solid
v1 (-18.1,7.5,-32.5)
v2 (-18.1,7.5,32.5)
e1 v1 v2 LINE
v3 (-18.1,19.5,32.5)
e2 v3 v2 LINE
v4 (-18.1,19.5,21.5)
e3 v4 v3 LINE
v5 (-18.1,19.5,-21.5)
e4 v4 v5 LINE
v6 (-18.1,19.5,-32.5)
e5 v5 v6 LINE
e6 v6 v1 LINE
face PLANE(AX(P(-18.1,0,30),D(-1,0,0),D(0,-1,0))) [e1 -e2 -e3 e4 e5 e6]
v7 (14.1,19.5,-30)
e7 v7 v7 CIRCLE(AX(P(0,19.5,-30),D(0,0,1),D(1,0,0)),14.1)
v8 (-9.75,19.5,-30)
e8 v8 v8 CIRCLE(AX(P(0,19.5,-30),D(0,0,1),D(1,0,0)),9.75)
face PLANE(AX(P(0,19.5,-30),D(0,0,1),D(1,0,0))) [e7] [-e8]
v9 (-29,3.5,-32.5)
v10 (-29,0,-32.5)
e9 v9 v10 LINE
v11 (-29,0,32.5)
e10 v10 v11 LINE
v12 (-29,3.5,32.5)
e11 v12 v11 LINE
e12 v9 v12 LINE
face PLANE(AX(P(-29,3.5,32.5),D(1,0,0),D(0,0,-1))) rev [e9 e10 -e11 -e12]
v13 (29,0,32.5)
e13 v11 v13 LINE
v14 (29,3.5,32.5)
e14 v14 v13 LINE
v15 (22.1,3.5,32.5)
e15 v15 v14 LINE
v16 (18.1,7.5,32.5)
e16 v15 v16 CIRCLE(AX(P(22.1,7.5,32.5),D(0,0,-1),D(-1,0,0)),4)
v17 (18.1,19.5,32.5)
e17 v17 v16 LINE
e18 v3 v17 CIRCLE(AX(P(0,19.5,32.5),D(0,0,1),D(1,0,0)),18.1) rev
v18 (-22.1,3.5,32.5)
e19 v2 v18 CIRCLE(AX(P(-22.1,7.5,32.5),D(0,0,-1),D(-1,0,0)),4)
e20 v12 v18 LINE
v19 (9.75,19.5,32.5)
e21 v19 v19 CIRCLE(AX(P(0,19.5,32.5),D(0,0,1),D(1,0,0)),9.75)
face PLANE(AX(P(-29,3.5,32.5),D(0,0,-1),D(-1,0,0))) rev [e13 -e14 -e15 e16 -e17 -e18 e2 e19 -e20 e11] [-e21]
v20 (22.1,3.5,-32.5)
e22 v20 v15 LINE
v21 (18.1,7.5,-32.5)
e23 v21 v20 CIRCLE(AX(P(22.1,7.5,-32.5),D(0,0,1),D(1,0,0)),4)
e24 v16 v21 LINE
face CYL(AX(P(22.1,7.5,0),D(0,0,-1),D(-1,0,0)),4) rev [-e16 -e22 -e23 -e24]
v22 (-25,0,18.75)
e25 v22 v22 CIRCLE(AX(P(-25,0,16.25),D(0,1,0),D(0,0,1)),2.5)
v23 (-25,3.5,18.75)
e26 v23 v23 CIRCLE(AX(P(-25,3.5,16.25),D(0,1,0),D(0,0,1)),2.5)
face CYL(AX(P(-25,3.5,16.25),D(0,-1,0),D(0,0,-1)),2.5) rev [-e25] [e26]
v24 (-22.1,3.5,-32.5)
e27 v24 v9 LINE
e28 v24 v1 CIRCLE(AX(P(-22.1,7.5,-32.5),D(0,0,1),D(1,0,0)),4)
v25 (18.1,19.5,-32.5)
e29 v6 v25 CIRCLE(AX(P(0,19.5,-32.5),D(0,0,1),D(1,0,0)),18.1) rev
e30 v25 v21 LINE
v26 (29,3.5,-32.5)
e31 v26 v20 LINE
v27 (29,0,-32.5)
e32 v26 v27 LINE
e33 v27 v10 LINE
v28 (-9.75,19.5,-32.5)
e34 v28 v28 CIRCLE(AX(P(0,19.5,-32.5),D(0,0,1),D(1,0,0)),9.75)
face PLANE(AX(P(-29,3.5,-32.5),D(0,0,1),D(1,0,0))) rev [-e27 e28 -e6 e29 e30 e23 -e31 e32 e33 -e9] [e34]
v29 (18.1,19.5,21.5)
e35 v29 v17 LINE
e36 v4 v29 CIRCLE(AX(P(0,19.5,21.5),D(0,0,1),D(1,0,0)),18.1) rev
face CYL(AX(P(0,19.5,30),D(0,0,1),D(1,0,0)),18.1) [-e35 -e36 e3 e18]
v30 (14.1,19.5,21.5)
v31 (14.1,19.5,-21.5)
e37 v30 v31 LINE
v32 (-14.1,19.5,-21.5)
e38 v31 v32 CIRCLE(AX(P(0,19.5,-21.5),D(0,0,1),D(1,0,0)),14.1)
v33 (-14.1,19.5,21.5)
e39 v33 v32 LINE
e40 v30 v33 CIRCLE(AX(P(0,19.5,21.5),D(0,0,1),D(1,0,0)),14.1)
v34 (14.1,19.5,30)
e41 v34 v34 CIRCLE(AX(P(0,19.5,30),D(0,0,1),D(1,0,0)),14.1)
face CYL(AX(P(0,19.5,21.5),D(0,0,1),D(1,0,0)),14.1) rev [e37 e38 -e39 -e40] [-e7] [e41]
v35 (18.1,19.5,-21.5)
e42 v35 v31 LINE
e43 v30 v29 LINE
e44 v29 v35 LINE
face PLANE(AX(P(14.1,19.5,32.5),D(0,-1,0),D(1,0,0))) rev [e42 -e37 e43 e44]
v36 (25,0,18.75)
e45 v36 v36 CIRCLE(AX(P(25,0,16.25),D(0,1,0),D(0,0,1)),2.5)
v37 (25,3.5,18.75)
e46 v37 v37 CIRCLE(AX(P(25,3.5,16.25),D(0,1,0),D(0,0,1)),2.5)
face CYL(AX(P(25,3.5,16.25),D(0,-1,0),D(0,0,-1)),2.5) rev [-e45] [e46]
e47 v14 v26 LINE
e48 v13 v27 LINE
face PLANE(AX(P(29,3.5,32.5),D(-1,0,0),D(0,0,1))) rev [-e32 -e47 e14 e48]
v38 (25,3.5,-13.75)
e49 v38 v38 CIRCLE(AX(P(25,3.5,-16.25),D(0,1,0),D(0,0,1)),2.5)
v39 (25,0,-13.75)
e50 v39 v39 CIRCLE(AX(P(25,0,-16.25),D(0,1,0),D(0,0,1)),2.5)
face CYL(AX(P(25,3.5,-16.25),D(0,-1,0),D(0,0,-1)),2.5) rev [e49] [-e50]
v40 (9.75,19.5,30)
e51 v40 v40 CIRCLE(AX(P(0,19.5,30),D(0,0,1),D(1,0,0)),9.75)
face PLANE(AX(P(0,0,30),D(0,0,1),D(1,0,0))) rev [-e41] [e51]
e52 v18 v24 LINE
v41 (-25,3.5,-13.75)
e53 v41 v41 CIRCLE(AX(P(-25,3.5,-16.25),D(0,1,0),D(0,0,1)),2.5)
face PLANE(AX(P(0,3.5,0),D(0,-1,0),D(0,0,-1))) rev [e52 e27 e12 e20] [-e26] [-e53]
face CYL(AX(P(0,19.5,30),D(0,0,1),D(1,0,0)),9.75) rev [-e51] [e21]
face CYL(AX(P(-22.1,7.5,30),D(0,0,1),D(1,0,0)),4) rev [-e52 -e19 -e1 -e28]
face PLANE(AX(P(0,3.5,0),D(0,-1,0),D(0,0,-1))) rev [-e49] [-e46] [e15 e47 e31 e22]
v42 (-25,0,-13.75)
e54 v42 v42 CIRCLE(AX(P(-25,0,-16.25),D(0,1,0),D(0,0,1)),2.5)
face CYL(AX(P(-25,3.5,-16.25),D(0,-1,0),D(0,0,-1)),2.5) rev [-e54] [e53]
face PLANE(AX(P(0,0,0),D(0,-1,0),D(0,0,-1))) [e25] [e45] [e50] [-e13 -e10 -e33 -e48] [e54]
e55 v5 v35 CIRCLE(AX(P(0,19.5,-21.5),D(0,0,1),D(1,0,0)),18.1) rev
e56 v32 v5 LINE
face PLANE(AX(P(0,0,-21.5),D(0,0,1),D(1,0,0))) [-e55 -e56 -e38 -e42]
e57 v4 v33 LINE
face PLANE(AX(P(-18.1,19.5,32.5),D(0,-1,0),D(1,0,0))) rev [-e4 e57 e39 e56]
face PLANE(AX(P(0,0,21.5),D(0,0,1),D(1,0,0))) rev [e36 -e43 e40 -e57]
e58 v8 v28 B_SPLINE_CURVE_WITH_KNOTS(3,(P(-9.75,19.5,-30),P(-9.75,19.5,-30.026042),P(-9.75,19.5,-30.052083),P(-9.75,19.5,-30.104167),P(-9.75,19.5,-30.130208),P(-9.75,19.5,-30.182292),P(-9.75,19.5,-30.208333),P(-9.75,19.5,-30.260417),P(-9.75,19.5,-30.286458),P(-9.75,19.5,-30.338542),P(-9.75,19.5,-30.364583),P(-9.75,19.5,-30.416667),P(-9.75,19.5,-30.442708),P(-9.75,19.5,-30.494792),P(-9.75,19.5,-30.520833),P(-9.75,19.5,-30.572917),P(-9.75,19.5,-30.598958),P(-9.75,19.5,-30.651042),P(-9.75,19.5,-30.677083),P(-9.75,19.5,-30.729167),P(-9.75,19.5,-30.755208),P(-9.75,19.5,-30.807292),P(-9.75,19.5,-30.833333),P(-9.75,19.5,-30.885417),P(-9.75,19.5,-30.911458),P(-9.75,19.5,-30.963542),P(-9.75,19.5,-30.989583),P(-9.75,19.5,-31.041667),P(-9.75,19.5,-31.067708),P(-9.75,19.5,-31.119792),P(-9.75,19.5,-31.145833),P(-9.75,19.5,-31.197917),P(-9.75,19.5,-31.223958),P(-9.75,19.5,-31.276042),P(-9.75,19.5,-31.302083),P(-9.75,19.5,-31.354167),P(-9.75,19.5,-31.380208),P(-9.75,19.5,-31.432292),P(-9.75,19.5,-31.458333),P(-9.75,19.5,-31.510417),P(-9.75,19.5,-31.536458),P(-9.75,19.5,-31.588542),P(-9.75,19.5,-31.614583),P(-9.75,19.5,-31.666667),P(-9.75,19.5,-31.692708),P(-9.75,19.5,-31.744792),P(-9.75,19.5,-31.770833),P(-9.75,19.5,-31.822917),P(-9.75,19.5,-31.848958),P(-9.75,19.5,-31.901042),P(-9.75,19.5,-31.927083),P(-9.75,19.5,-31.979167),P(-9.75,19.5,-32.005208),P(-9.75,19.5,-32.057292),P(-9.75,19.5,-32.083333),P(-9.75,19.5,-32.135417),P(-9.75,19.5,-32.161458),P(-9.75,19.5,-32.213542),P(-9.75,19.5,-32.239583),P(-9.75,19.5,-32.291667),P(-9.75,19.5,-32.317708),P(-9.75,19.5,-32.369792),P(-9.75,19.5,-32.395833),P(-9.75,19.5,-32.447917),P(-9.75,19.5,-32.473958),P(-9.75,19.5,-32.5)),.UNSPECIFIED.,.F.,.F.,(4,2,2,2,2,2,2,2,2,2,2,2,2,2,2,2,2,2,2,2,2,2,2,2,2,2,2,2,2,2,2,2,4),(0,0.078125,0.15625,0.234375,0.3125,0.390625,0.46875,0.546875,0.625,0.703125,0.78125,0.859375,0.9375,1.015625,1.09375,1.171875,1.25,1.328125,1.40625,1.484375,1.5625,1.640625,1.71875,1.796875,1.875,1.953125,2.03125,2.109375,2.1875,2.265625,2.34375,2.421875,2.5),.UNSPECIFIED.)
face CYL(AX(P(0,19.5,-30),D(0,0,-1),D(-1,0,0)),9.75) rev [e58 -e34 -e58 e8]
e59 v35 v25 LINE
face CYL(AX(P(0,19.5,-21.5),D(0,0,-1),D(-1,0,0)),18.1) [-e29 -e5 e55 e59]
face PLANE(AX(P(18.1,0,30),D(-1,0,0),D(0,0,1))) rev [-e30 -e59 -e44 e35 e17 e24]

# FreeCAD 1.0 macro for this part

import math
import FreeCAD as App
import Part
import Sketcher
from FreeCAD import Vector


def edges_at(feature, points):
    """Names of the edges that pass closest to the given points."""
    edges = feature.Shape.Edges
    near = lambda p: min(range(len(edges)), key=lambda i: edges[i].distToShape(Part.Vertex(*p))[0])
    return sorted({f"Edge{near(p) + 1}" for p in points})


def add_polygon(sketch, points):
    """Adds a closed chain of lines whose ends are joined by coincident constraints."""
    first, n = sketch.GeometryCount, len(points)
    for a, b in zip(points, points[1:] + points[:1]):
        sketch.addGeometry(Part.LineSegment(App.Vector(*a, 0), App.Vector(*b, 0)), False)
    for i in range(n):
        sketch.addConstraint(Sketcher.Constraint("Coincident", first + i, 2, first + (i + 1) % n, 1))

doc = App.newDocument("Part")
params = doc.addObject("Spreadsheet::Sheet", "Params")
for row, (alias, value) in enumerate([
    ("sketch1_diameter", "5 mm"),
    ("sketch1_width", "58 mm"),
    ("sketch1_height", "65 mm"),
    ("pad1_length", "3.5 mm"),
    ("sketch2_diameter", "19.5 mm"),
    ("sketch2_radius", "18.1 mm"),
    ("sketch2_height", "16 mm"),
    ("pad2_length", "2.5 mm"),
    ("sketch3_diameter", "28.2 mm"),
    ("sketch3_radius", "18.1 mm"),
    ("sketch3_height", "16 mm"),
    ("pad3_length", "11 mm"),
    ("sketch4_diameter", "28.2 mm"),
    ("sketch4_radius", "18.1 mm"),
    ("sketch4_width", "58 mm"),
    ("sketch4_height", "16 mm"),
    ("sketch4_height2", "3.5 mm"),
    ("pad4_length", "11 mm"),
    ("sketch5_diameter", "28.2 mm"),
    ("sketch5_diameter2", "19.5 mm"),
    ("pad5_length", "2.5 mm"),
    ("fillet_radius", "4 mm"),
    ("sketch6_radius", "4 mm"),
    ("sketch6_radius2", "14.1 mm"),
    ("sketch6_width", "4 mm"),
    ("sketch6_height", "12 mm"),
], start=1):
    params.set(f"A{row}", alias)
    params.set(f"B{row}", "=" + value)
    params.setAlias(f"B{row}", alias)

body = doc.addObject("PartDesign::Body", "Body")

# Sketch on XZ plane
sketch1 = body.newObject("Sketcher::SketchObject", "Sketch")
sketch1.AttachmentSupport = (doc.getObject("XZ_Plane"), [""])
sketch1.MapMode = "FlatFace"
add_polygon(sketch1, [(-29, -32.5), (-29, 32.5), (29, 32.5), (29, -32.5)])  # lines 0-3
sketch1.addGeometry(Part.Circle(Vector(-25, 16.2, 0), Vector(0, 0, 1), 2.5), False)  # 4
sketch1.addGeometry(Part.Circle(Vector(25, 16.2, 0), Vector(0, 0, 1), 2.5), False)  # 5
sketch1.addGeometry(Part.Circle(Vector(-25, -16.2, 0), Vector(0, 0, 1), 2.5), False)  # 6
sketch1.addGeometry(Part.Circle(Vector(25, -16.2, 0), Vector(0, 0, 1), 2.5), False)  # 7
sketch1.addConstraint([
    Sketcher.Constraint("Vertical", 0),
    Sketcher.Constraint("Horizontal", 1),
    Sketcher.Constraint("Vertical", 2),
    Sketcher.Constraint("Horizontal", 3),
    Sketcher.Constraint("Equal", 4, 5),
    Sketcher.Constraint("Equal", 5, 6),
    Sketcher.Constraint("Equal", 6, 7),
    Sketcher.Constraint("Symmetric", 5, 3, 6, 3, -1, 1),
    Sketcher.Constraint("Symmetric", 4, 3, 7, 3, -1, 1),
    Sketcher.Constraint("Symmetric", 0, 2, 2, 2, -1, 1),
    Sketcher.Constraint("Symmetric", 4, 3, 5, 3, -2),
    Sketcher.Constraint("Diameter", 4, 5.0),
    Sketcher.Constraint("DistanceX", 1, 1, 1, 2, 58.0),
    Sketcher.Constraint("DistanceY", 0, 1, 0, 2, 65.0),
    Sketcher.Constraint("DistanceX", 4, 3, -1, 1, 25.0),
    Sketcher.Constraint("DistanceY", 6, 3, 4, 3, 32.5),
])
sketch1.setExpression("Constraints[15]", "Params.sketch1_diameter")
sketch1.setExpression("Constraints[16]", "Params.sketch1_width")
sketch1.setExpression("Constraints[17]", "Params.sketch1_height")
pad1 = body.newObject("PartDesign::Pad", "Pad")
pad1.Profile = sketch1
pad1.setExpression("Length", "Params.pad1_length")
pad1.Reversed = True

# Sketch on XY plane
sketch2 = body.newObject("Sketcher::SketchObject", "Sketch001")
sketch2.AttachmentSupport = (doc.getObject("XY_Plane"), [""])
sketch2.MapMode = "FlatFace"
sketch2.AttachmentOffset = App.Placement(Vector(0, 0, 32.5), App.Rotation())
sketch2.addGeometry([
    Part.ArcOfCircle(Part.Circle(Vector(0, 20, 0), Vector(0, 0, 1), 18), math.radians(0), math.radians(180)),  # 0
    Part.LineSegment(Vector(-18, 20, 0), Vector(-18, 4, 0)),  # 1
    Part.LineSegment(Vector(-18, 4, 0), Vector(18, 4, 0)),  # 2
    Part.LineSegment(Vector(18, 4, 0), Vector(18, 20, 0)),  # 3
    Part.Circle(Vector(0, 20, 0), Vector(0, 0, 1), 10),  # 4
], False)
sketch2.addConstraint([
    Sketcher.Constraint("Tangent", 0, 2, 1, 1),
    Sketcher.Constraint("Coincident", 1, 2, 2, 1),
    Sketcher.Constraint("Coincident", 2, 2, 3, 1),
    Sketcher.Constraint("Tangent", 3, 2, 0, 1),
    Sketcher.Constraint("Vertical", 1),
    Sketcher.Constraint("Horizontal", 2),
    Sketcher.Constraint("Vertical", 3),
    Sketcher.Constraint("Coincident", 4, 3, 0, 3),
    Sketcher.Constraint("PointOnObject", 0, 3, -2),
    Sketcher.Constraint("Diameter", 4, 19.5),
    Sketcher.Constraint("Radius", 0, 18.1),
    Sketcher.Constraint("DistanceY", 1, 2, 1, 1, 16.0),
    Sketcher.Constraint("DistanceY", -1, 1, 0, 3, 19.5),
])
sketch2.setExpression("Constraints[9]", "Params.sketch2_diameter")
sketch2.setExpression("Constraints[10]", "Params.sketch2_radius")
sketch2.setExpression("Constraints[11]", "Params.sketch2_height")
pad2 = body.newObject("PartDesign::Pad", "Pad001")
pad2.Profile = sketch2
pad2.setExpression("Length", "Params.pad2_length")
pad2.Reversed = True

# Sketch on XY plane
sketch3 = body.newObject("Sketcher::SketchObject", "Sketch002")
sketch3.AttachmentSupport = (doc.getObject("XY_Plane"), [""])
sketch3.MapMode = "FlatFace"
sketch3.AttachmentOffset = App.Placement(Vector(0, 0, 32.5), App.Rotation())
sketch3.addGeometry([
    Part.ArcOfCircle(Part.Circle(Vector(0, 20, 0), Vector(0, 0, 1), 18), math.radians(0), math.radians(180)),  # 0
    Part.LineSegment(Vector(-18, 20, 0), Vector(-18, 4, 0)),  # 1
    Part.LineSegment(Vector(-18, 4, 0), Vector(18, 4, 0)),  # 2
    Part.LineSegment(Vector(18, 4, 0), Vector(18, 20, 0)),  # 3
    Part.Circle(Vector(0, 20, 0), Vector(0, 0, 1), 14),  # 4
], False)
sketch3.addConstraint([
    Sketcher.Constraint("Tangent", 0, 2, 1, 1),
    Sketcher.Constraint("Coincident", 1, 2, 2, 1),
    Sketcher.Constraint("Coincident", 2, 2, 3, 1),
    Sketcher.Constraint("Tangent", 3, 2, 0, 1),
    Sketcher.Constraint("Vertical", 1),
    Sketcher.Constraint("Horizontal", 2),
    Sketcher.Constraint("Vertical", 3),
    Sketcher.Constraint("Coincident", 4, 3, 0, 3),
    Sketcher.Constraint("PointOnObject", 0, 3, -2),
    Sketcher.Constraint("Diameter", 4, 28.2),
    Sketcher.Constraint("Radius", 0, 18.1),
    Sketcher.Constraint("DistanceY", 1, 2, 1, 1, 16.0),
    Sketcher.Constraint("DistanceY", -1, 1, 0, 3, 19.5),
])
sketch3.setExpression("Constraints[9]", "Params.sketch3_diameter")
sketch3.setExpression("Constraints[10]", "Params.sketch3_radius")
sketch3.setExpression("Constraints[11]", "Params.sketch3_height")
pad3 = body.newObject("PartDesign::Pad", "Pad002")
pad3.Profile = sketch3
pad3.setExpression("Length", "Params.pad3_length")
pad3.Reversed = True

# Sketch on XY plane
sketch4 = body.newObject("Sketcher::SketchObject", "Sketch003")
sketch4.AttachmentSupport = (doc.getObject("XY_Plane"), [""])
sketch4.MapMode = "FlatFace"
sketch4.AttachmentOffset = App.Placement(Vector(0, 0, -21.5), App.Rotation())
sketch4.addGeometry([
    Part.ArcOfCircle(Part.Circle(Vector(0, 19.5, 0), Vector(0, 0, 1), 18.1), math.radians(0), math.radians(180)),  # 0
    Part.LineSegment(Vector(-18.1, 19.5, 0), Vector(-18.1, 3.5, 0)),  # 1
    Part.LineSegment(Vector(-18.1, 3.5, 0), Vector(-29, 3.5, 0)),  # 2
    Part.LineSegment(Vector(-29, 3.5, 0), Vector(-29, 0, 0)),  # 3
    Part.LineSegment(Vector(-29, 0, 0), Vector(29, 0, 0)),  # 4
    Part.LineSegment(Vector(29, 0, 0), Vector(29, 3.5, 0)),  # 5
    Part.LineSegment(Vector(29, 3.5, 0), Vector(18.1, 3.5, 0)),  # 6
    Part.LineSegment(Vector(18.1, 3.5, 0), Vector(18.1, 19.5, 0)),  # 7
    Part.Circle(Vector(0, 19.5, 0), Vector(0, 0, 1), 14.1),  # 8
], False)
sketch4.addConstraint([
    Sketcher.Constraint("Tangent", 0, 2, 1, 1),
    Sketcher.Constraint("Coincident", 1, 2, 2, 1),
    Sketcher.Constraint("Coincident", 2, 2, 3, 1),
    Sketcher.Constraint("Coincident", 3, 2, 4, 1),
    Sketcher.Constraint("Coincident", 4, 2, 5, 1),
    Sketcher.Constraint("Coincident", 5, 2, 6, 1),
    Sketcher.Constraint("Coincident", 6, 2, 7, 1),
    Sketcher.Constraint("Tangent", 7, 2, 0, 1),
    Sketcher.Constraint("Vertical", 1),
    Sketcher.Constraint("Horizontal", 2),
    Sketcher.Constraint("Vertical", 3),
    Sketcher.Constraint("Horizontal", 4),
    Sketcher.Constraint("Vertical", 5),
    Sketcher.Constraint("Horizontal", 6),
    Sketcher.Constraint("Vertical", 7),
    Sketcher.Constraint("Coincident", 8, 3, 0, 3),
    Sketcher.Constraint("Symmetric", 3, 2, 4, 2, -1, 1),
    Sketcher.Constraint("Symmetric", 1, 2, 6, 2, -2),
    Sketcher.Constraint("Diameter", 8, 28.2),
    Sketcher.Constraint("Radius", 0, 18.1),
    Sketcher.Constraint("DistanceX", 4, 1, 4, 2, 58.0),
    Sketcher.Constraint("DistanceY", 1, 2, 1, 1, 16.0),
    Sketcher.Constraint("DistanceY", 3, 2, 3, 1, 3.5),
])
sketch4.setExpression("Constraints[18]", "Params.sketch4_diameter")
sketch4.setExpression("Constraints[19]", "Params.sketch4_radius")
sketch4.setExpression("Constraints[20]", "Params.sketch4_width")
sketch4.setExpression("Constraints[21]", "Params.sketch4_height")
sketch4.setExpression("Constraints[22]", "Params.sketch4_height2")
pad4 = body.newObject("PartDesign::Pad", "Pad003")
pad4.Profile = sketch4
pad4.setExpression("Length", "Params.pad4_length")
pad4.Reversed = True

# Sketch on XY plane
sketch5 = body.newObject("Sketcher::SketchObject", "Sketch004")
sketch5.AttachmentSupport = (doc.getObject("XY_Plane"), [""])
sketch5.MapMode = "FlatFace"
sketch5.AttachmentOffset = App.Placement(Vector(0, 0, -30), App.Rotation())
sketch5.addGeometry([
    Part.Circle(Vector(0, 20, 0), Vector(0, 0, 1), 14),
    Part.Circle(Vector(0, 20, 0), Vector(0, 0, 1), 10),
], False)
sketch5.addConstraint([
    Sketcher.Constraint("Coincident", 1, 3, 0, 3),
    Sketcher.Constraint("PointOnObject", 0, 3, -2),
    Sketcher.Constraint("Diameter", 0, 28.2),
    Sketcher.Constraint("Diameter", 1, 19.5),
    Sketcher.Constraint("DistanceY", -1, 1, 0, 3, 19.5),
])
sketch5.setExpression("Constraints[2]", "Params.sketch5_diameter")
sketch5.setExpression("Constraints[3]", "Params.sketch5_diameter2")
pad5 = body.newObject("PartDesign::Pad", "Pad004")
pad5.Profile = sketch5
pad5.setExpression("Length", "Params.pad5_length")
pad5.Reversed = True
doc.recompute()

fillet = body.newObject("PartDesign::Fillet", "Fillet")
fillet.Base = (pad5, edges_at(pad5, [
    (18.1, 3.5, 27),
    (-18.1, 3.5, 27),
    (-18.1, 3.5, -27),
    (18.1, 3.5, -27),
]))
fillet.setExpression("Radius", "Params.fillet_radius")

# Sketch on XY plane
sketch6 = body.newObject("Sketcher::SketchObject", "Sketch005")
sketch6.AttachmentSupport = (doc.getObject("XY_Plane"), [""])
sketch6.MapMode = "FlatFace"
sketch6.AttachmentOffset = App.Placement(Vector(0, 0, -21.5), App.Rotation())
sketch6.addGeometry([
    Part.LineSegment(Vector(-18.1, 19.5, 0), Vector(-18.1, 7.5, 0)),  # 0
    Part.ArcOfCircle(Part.Circle(Vector(-22.1, 7.5, 0), Vector(0, 0, 1), 4), math.radians(-90), math.radians(0)),  # 1
    Part.LineSegment(Vector(-22.1, 3.5, 0), Vector(22.1, 3.5, 0)),  # 2
    Part.ArcOfCircle(Part.Circle(Vector(22.1, 7.5, 0), Vector(0, 0, 1), 4), math.radians(180), math.radians(270)),  # 3
    Part.LineSegment(Vector(18.1, 7.5, 0), Vector(18.1, 19.5, 0)),  # 4
    Part.LineSegment(Vector(18.1, 19.5, 0), Vector(14.1, 19.5, 0)),  # 5
    Part.ArcOfCircle(Part.Circle(Vector(0, 19.5, 0), Vector(0, 0, 1), 14.1), math.radians(180), math.radians(360)),  # 6
    Part.LineSegment(Vector(-14.1, 19.5, 0), Vector(-18.1, 19.5, 0)),  # 7
], False)
sketch6.addConstraint([
    Sketcher.Constraint("Tangent", 0, 2, 1, 2),
    Sketcher.Constraint("Tangent", 1, 1, 2, 1),
    Sketcher.Constraint("Tangent", 2, 2, 3, 2),
    Sketcher.Constraint("Tangent", 3, 1, 4, 1),
    Sketcher.Constraint("Coincident", 4, 2, 5, 1),
    Sketcher.Constraint("Coincident", 5, 2, 6, 2),
    Sketcher.Constraint("Coincident", 6, 1, 7, 1),
    Sketcher.Constraint("Coincident", 7, 2, 0, 1),
    Sketcher.Constraint("Vertical", 0),
    Sketcher.Constraint("Horizontal", 2),
    Sketcher.Constraint("Vertical", 4),
    Sketcher.Constraint("Horizontal", 5),
    Sketcher.Constraint("Horizontal", 7),
    Sketcher.Constraint("Equal", 1, 3),
    Sketcher.Constraint("Symmetric", 5, 2, 6, 1, -2),
    Sketcher.Constraint("Horizontal", 6, 3, 4, 2),
    Sketcher.Constraint("Equal", 5, 7),
    Sketcher.Constraint("Radius", 1, 4.0),
    Sketcher.Constraint("Radius", 6, 14.1),
    Sketcher.Constraint("DistanceX", 5, 2, 5, 1, 4.0),
    Sketcher.Constraint("DistanceY", 0, 2, 0, 1, 12.0),
    Sketcher.Constraint("DistanceY", -1, 1, 1, 3, 7.5),
])
sketch6.setExpression("Constraints[17]", "Params.sketch6_radius")
sketch6.setExpression("Constraints[18]", "Params.sketch6_radius2")
sketch6.setExpression("Constraints[19]", "Params.sketch6_width")
sketch6.setExpression("Constraints[20]", "Params.sketch6_height")
pad6 = body.newObject("PartDesign::Pad", "Pad005")
pad6.Profile = sketch6
pad6.Type = "UpToFirst"

doc.recompute()
